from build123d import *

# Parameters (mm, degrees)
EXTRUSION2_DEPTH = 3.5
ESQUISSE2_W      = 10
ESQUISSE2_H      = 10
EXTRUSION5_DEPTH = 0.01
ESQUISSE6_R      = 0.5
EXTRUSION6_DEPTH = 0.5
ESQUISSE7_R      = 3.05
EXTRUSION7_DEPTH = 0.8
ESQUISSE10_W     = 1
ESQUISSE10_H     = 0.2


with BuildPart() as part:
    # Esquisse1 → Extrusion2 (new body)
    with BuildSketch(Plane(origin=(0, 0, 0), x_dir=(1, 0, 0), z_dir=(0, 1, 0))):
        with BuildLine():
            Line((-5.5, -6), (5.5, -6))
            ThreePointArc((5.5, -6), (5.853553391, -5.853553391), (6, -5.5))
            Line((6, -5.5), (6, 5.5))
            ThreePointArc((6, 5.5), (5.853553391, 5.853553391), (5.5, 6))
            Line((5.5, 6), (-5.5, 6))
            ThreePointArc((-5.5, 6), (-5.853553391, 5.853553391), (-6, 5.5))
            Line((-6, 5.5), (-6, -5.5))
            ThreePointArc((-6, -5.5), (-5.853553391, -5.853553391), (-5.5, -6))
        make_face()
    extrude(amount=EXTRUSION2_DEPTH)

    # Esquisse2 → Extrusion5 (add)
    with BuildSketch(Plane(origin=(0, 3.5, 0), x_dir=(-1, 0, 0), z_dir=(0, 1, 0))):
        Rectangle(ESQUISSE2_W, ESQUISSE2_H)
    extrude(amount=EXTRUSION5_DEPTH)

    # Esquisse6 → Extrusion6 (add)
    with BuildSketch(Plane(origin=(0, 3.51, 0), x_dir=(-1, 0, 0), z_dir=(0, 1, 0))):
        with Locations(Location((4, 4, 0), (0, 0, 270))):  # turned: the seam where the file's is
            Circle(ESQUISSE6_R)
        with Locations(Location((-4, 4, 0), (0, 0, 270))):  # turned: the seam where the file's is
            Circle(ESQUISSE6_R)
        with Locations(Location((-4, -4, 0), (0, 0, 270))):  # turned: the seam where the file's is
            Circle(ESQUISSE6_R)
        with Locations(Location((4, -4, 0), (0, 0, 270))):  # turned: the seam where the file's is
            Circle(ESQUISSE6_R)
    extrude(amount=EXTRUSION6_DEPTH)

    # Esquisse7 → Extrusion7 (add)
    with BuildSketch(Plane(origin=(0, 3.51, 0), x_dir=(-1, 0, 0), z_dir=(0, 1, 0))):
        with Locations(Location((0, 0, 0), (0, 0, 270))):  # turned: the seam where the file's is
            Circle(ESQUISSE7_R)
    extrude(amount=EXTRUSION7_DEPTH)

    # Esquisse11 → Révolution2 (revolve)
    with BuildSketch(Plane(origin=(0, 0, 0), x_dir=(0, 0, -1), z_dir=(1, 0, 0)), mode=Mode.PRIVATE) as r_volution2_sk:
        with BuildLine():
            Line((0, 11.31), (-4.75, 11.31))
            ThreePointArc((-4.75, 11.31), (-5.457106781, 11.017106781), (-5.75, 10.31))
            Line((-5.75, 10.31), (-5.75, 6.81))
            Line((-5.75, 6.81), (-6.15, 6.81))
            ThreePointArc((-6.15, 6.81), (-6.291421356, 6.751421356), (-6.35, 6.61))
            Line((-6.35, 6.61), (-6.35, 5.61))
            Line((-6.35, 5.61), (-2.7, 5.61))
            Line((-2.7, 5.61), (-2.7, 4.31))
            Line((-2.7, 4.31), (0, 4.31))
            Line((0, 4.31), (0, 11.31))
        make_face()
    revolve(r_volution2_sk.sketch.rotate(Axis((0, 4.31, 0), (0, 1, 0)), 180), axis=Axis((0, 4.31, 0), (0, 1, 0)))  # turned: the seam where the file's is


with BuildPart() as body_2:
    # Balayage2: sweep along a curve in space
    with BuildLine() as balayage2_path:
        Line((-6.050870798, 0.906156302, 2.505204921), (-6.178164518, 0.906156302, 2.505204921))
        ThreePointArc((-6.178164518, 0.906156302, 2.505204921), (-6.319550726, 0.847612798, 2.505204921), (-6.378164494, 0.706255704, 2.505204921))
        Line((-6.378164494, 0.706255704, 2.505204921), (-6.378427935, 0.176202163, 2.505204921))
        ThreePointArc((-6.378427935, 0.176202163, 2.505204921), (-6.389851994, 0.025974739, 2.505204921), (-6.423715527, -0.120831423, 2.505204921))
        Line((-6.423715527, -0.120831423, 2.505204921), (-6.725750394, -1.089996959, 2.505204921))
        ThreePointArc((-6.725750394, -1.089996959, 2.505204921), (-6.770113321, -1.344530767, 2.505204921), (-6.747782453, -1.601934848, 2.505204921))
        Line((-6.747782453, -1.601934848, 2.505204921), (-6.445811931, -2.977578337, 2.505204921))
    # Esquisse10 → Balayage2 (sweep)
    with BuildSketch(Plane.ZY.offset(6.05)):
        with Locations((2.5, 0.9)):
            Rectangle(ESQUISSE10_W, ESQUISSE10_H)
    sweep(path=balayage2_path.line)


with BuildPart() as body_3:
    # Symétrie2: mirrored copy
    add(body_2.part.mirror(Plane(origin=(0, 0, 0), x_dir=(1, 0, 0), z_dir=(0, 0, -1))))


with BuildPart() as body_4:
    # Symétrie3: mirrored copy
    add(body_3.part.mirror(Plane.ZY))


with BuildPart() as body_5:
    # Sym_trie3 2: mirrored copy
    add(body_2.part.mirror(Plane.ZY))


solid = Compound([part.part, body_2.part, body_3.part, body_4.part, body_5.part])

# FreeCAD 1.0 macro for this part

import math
import FreeCAD as App
import Part
import Sketcher

V = App.Vector


def add_polygon(sketch, points):
    """Adds a closed chain of lines whose ends are joined by coincident constraints."""
    first, n = sketch.GeometryCount, len(points)
    for a, b in zip(points, points[1:] + points[:1]):
        sketch.addGeometry(Part.LineSegment(App.Vector(*a, 0), App.Vector(*b, 0)), False)
    for i in range(n):
        sketch.addConstraint(Sketcher.Constraint("Coincident", first + i, 2, first + (i + 1) % n, 1))

doc = App.newDocument("Part")
body = doc.addObject("PartDesign::Body", "Body")

# Sketch on XZ plane
sketch1 = doc.addObject("Sketcher::SketchObject", "Sketch")
body.addObject(sketch1)
sketch1.AttachmentSupport = (doc.XZ_Plane, [""])
sketch1.MapMode = "FlatFace"
sketch1.addGeometry([
    Part.LineSegment(V(-5.5, 6, 0), V(5.5, 6, 0)),  # 0
    Part.ArcOfCircle(Part.Circle(V(5.5, 5.5, 0), V(0, 0, 1), 0.5), math.radians(0), math.radians(90)),  # 1
    Part.LineSegment(V(6, 5.5, 0), V(6, -5.5, 0)),  # 2
    Part.ArcOfCircle(Part.Circle(V(5.5, -5.5, 0), V(0, 0, 1), 0.5), math.radians(-90), math.radians(0)),  # 3
    Part.LineSegment(V(5.5, -6, 0), V(-5.5, -6, 0)),  # 4
    Part.ArcOfCircle(Part.Circle(V(-5.5, -5.5, 0), V(0, 0, 1), 0.5), math.radians(180), math.radians(270)),  # 5
    Part.LineSegment(V(-6, -5.5, 0), V(-6, 5.5, 0)),  # 6
    Part.ArcOfCircle(Part.Circle(V(-5.5, 5.5, 0), V(0, 0, 1), 0.5), math.radians(90), math.radians(180)),  # 7
], False)
sketch1.addConstraint([
    Sketcher.Constraint("Tangent", 0, 2, 1, 2),
    Sketcher.Constraint("Tangent", 1, 1, 2, 1),
    Sketcher.Constraint("Tangent", 2, 2, 3, 2),
    Sketcher.Constraint("Tangent", 3, 1, 4, 1),
    Sketcher.Constraint("Tangent", 4, 2, 5, 2),
    Sketcher.Constraint("Tangent", 5, 1, 6, 1),
    Sketcher.Constraint("Tangent", 6, 2, 7, 2),
    Sketcher.Constraint("Tangent", 7, 1, 0, 1),
    Sketcher.Constraint("Horizontal", 0),
    Sketcher.Constraint("Vertical", 2),
    Sketcher.Constraint("Horizontal", 4),
    Sketcher.Constraint("Vertical", 6),
    Sketcher.Constraint("Equal", 1, 3),
    Sketcher.Constraint("Equal", 3, 5),
    Sketcher.Constraint("Equal", 5, 7),
    Sketcher.Constraint("Symmetric", 1, 3, 5, 3, -1, 1),
    Sketcher.Constraint("Equal", 4, 2),
    Sketcher.Constraint("Radius", 1, 0.5),
    Sketcher.Constraint("DistanceX", 0, 1, 0, 2, 11.0),
])
pad1 = doc.addObject("PartDesign::Pad", "Pad")
body.addObject(pad1)
pad1.Profile = sketch1
pad1.Length = 3.5
pad1.Reversed = True

# Sketch on XZ plane
sketch2 = doc.addObject("Sketcher::SketchObject", "Sketch001")
body.addObject(sketch2)
sketch2.AttachmentSupport = (doc.XZ_Plane, [""])
sketch2.MapMode = "FlatFace"
sketch2.AttachmentOffset = App.Placement(V(0, 0, -3.5), App.Rotation())
add_polygon(sketch2, [(5, 5), (5, -5), (-5, -5), (-5, 5)])  # lines 0-3
sketch2.addConstraint([
    Sketcher.Constraint("Vertical", 0),
    Sketcher.Constraint("Horizontal", 1),
    Sketcher.Constraint("Vertical", 2),
    Sketcher.Constraint("Horizontal", 3),
    Sketcher.Constraint("Symmetric", 0, 2, 2, 2, -1, 1),
    Sketcher.Constraint("Equal", 3, 0),
    Sketcher.Constraint("DistanceX", 1, 2, 1, 1, 10.0),
])
pad2 = doc.addObject("PartDesign::Pad", "Pad001")
body.addObject(pad2)
pad2.Profile = sketch2
pad2.Length = 0.01
pad2.Reversed = True

# Sketch on XZ plane
sketch3 = doc.addObject("Sketcher::SketchObject", "Sketch002")
body.addObject(sketch3)
sketch3.AttachmentSupport = (doc.XZ_Plane, [""])
sketch3.MapMode = "FlatFace"
sketch3.AttachmentOffset = App.Placement(V(0, 0, -3.51), App.Rotation())
sketch3.addGeometry([
    Part.Circle(V(-4, 4, 0), V(0, 0, 1), 0.5),
    Part.Circle(V(4, 4, 0), V(0, 0, 1), 0.5),
    Part.Circle(V(4, -4, 0), V(0, 0, 1), 0.5),
    Part.Circle(V(-4, -4, 0), V(0, 0, 1), 0.5),
], False)
sketch3.addConstraint([
    Sketcher.Constraint("Equal", 0, 1),
    Sketcher.Constraint("Equal", 1, 2),
    Sketcher.Constraint("Equal", 2, 3),
    Sketcher.Constraint("Symmetric", 0, 3, 2, 3, -1, 1),
    Sketcher.Constraint("Symmetric", 1, 3, 3, 3, -1, 1),
    Sketcher.Constraint("Symmetric", 0, 3, 1, 3, -2),
    Sketcher.Constraint("Diameter", 0, 1.0),
    Sketcher.Constraint("DistanceX", 0, 3, -1, 1, 4.0),
    Sketcher.Constraint("DistanceY", -1, 1, 0, 3, 4.0),
])
pad3 = doc.addObject("PartDesign::Pad", "Pad002")
body.addObject(pad3)
pad3.Profile = sketch3
pad3.Length = 0.5
pad3.Reversed = True

# Sketch on XZ plane
sketch4 = doc.addObject("Sketcher::SketchObject", "Sketch003")
body.addObject(sketch4)
sketch4.AttachmentSupport = (doc.XZ_Plane, [""])
sketch4.MapMode = "FlatFace"
sketch4.AttachmentOffset = App.Placement(V(0, 0, -3.51), App.Rotation())
sketch4.addGeometry(Part.Circle(V(0, 0, 0), V(0, 0, 1), 3), False)
sketch4.addConstraint([
    Sketcher.Constraint("Coincident", 0, 3, -1, 1),
    Sketcher.Constraint("Diameter", 0, 6.1),
])
pad4 = doc.addObject("PartDesign::Pad", "Pad003")
body.addObject(pad4)
pad4.Profile = sketch4
pad4.Length = 0.8
pad4.Reversed = True

# Sketch on YZ plane
sketch5 = doc.addObject("Sketcher::SketchObject", "Sketch004")
body.addObject(sketch5)
sketch5.AttachmentSupport = (doc.YZ_Plane, [""])
sketch5.MapMode = "FlatFace"
sketch5.addGeometry([
    Part.LineSegment(V(11.31, 0, 0), V(11.31, 4.75, 0)),  # 0
    Part.ArcOfCircle(Part.Circle(V(10.31, 4.75, 0), V(0, 0, 1), 1), math.radians(0), math.radians(90)),  # 1
    Part.LineSegment(V(10.31, 5.75, 0), V(6.81, 5.75, 0)),  # 2
    Part.LineSegment(V(6.81, 5.75, 0), V(6.81, 6.15, 0)),  # 3
    Part.ArcOfCircle(Part.Circle(V(6.61, 6.15, 0), V(0, 0, 1), 0.2), math.radians(0), math.radians(90)),  # 4
    Part.LineSegment(V(6.61, 6.35, 0), V(5.61, 6.35, 0)),  # 5
    Part.LineSegment(V(5.61, 6.35, 0), V(5.61, 2.7, 0)),  # 6
    Part.LineSegment(V(5.61, 2.7, 0), V(4.31, 2.7, 0)),  # 7
    Part.LineSegment(V(4.31, 2.7, 0), V(4.31, 0, 0)),  # 8
    Part.LineSegment(V(4.31, 0, 0), V(11.31, 0, 0)),  # 9
], False)
sketch5.addConstraint([
    Sketcher.Constraint("Tangent", 0, 2, 1, 1),
    Sketcher.Constraint("Tangent", 1, 2, 2, 1),
    Sketcher.Constraint("Coincident", 2, 2, 3, 1),
    Sketcher.Constraint("Tangent", 3, 2, 4, 1),
    Sketcher.Constraint("Tangent", 4, 2, 5, 1),
    Sketcher.Constraint("Coincident", 5, 2, 6, 1),
    Sketcher.Constraint("Coincident", 6, 2, 7, 1),
    Sketcher.Constraint("Coincident", 7, 2, 8, 1),
    Sketcher.Constraint("Coincident", 8, 2, 9, 1),
    Sketcher.Constraint("Coincident", 9, 2, 0, 1),
    Sketcher.Constraint("Vertical", 0),
    Sketcher.Constraint("Horizontal", 2),
    Sketcher.Constraint("Vertical", 3),
    Sketcher.Constraint("Horizontal", 5),
    Sketcher.Constraint("Vertical", 6),
    Sketcher.Constraint("Horizontal", 7),
    Sketcher.Constraint("Vertical", 8),
    Sketcher.Constraint("Horizontal", 9),
    Sketcher.Constraint("PointOnObject", 8, 2, -1),
    Sketcher.Constraint("Radius", 1, 1.0),
    Sketcher.Constraint("Radius", 4, 0.2),
    Sketcher.Constraint("DistanceX", 5, 2, 5, 1, 1.0),
    Sketcher.Constraint("DistanceX", 9, 1, 9, 2, 7.0),
    Sketcher.Constraint("DistanceX", 2, 2, 2, 1, 3.5),
    Sketcher.Constraint("DistanceY", 3, 1, 3, 2, 0.4),
    Sketcher.Constraint("DistanceY", 8, 2, 8, 1, 2.7),
    Sketcher.Constraint("DistanceY", 0, 1, 0, 2, 4.75),
    Sketcher.Constraint("DistanceX", -1, 1, 1, 3, 10.31),
])
revolution = doc.addObject("PartDesign::Revolution", "Revolution")
body.addObject(revolution)
revolution.Profile = sketch5
revolution.ReferenceAxis = (sketch5, ["H_Axis"])
revolution.Angle = 360
body2 = doc.addObject("PartDesign::Body", "Body001")

# Sketch on YZ plane
sketch6 = doc.addObject("Sketcher::SketchObject", "Sketch005")
body2.addObject(sketch6)
sketch6.AttachmentSupport = (doc.getObject("YZ_Plane001"), [""])
sketch6.MapMode = "FlatFace"
sketch6.AttachmentOffset = App.Placement(V(0, 0, -6.05), App.Rotation())
add_polygon(sketch6, [(1, 2), (0.8, 2), (0.8, 3), (1, 3)])  # lines 0-3
sketch6.addConstraint([
    Sketcher.Constraint("Horizontal", 0),
    Sketcher.Constraint("Vertical", 1),
    Sketcher.Constraint("Horizontal", 2),
    Sketcher.Constraint("Vertical", 3),
    Sketcher.Constraint("DistanceY", 1, 1, 1, 2, 1.0),
    Sketcher.Constraint("DistanceX", 0, 2, 0, 1, 0.2),
    Sketcher.Constraint("DistanceY", -1, 1, 0, 2, 2.0),
    Sketcher.Constraint("DistanceX", -1, 1, 2, 2, 1.0),
])

# Sketch on XY plane
sketch7 = doc.addObject("Sketcher::SketchObject", "Sketch006")
body2.addObject(sketch7)
sketch7.AttachmentSupport = (doc.getObject("XY_Plane001"), [""])
sketch7.MapMode = "FlatFace"
sketch7.AttachmentOffset = App.Placement(V(0, 0, 2.505205), App.Rotation())
sketch7.addGeometry([
    Part.LineSegment(V(-6.05, 0.91, 0), V(-6.18, 0.91, 0)),  # 0
    Part.ArcOfCircle(Part.Circle(V(-6.18, 0.71, 0), V(0, 0, 1), 0.2), math.radians(90), math.radians(180)),  # 1
    Part.LineSegment(V(-6.38, 0.71, 0), V(-6.38, 0.18, 0)),  # 2
    Part.ArcOfCircle(Part.Circle(V(-7.38, 0.18, 0), V(0, 0, 1), 1), math.radians(-17.31), math.radians(-0.03)),  # 3
    Part.LineSegment(V(-6.42, -0.12, 0), V(-6.73, -1.09, 0)),  # 4
    Part.ArcOfCircle(Part.Circle(V(-5.77, -1.39, 0), V(0, 0, 1), 1), math.radians(163), math.radians(192)),  # 5
    Part.LineSegment(V(-6.75, -1.6, 0), V(-6.45, -2.98, 0)),  # 6
], False)
sketch7.addConstraint([
    Sketcher.Constraint("Tangent", 0, 2, 1, 1),
    Sketcher.Constraint("Tangent", 1, 2, 2, 1),
    Sketcher.Constraint("Tangent", 2, 2, 3, 2),
    Sketcher.Constraint("Tangent", 3, 1, 4, 1),
    Sketcher.Constraint("Tangent", 4, 2, 5, 1),
    Sketcher.Constraint("Tangent", 5, 2, 6, 1),
    Sketcher.Constraint("Horizontal", 0),
    Sketcher.Constraint("Equal", 3, 5),
    Sketcher.Constraint("Radius", 3, 1.0),
    Sketcher.Constraint("Radius", 1, 0.2),
    Sketcher.Constraint("DistanceY", -1, 1, 3, 3, 0.176699),
    Sketcher.Constraint("DistanceY", 1, 2, 0, 2, 0.199901),
    Sketcher.Constraint("DistanceY", 4, 2, 2, 2, 1.266199),
    Sketcher.Constraint("Distance", 4, 1.015139),
    Sketcher.Constraint("DistanceX", 0, 2, 0, 1, 0.127294),
    Sketcher.Constraint("DistanceX", 5, 3, -1, 1, 5.771038),
    Sketcher.Constraint("DistanceX", 6, 2, -1, 1, 6.445812),
    Sketcher.Constraint("DistanceY", 6, 2, -1, 1, 2.977578),
    Sketcher.Constraint("Distance", 2, 0.530054),
])
doc.recompute()

additivepipe = doc.addObject("PartDesign::AdditivePipe", "AdditivePipe")
body2.addObject(additivepipe)
additivepipe.Profile = sketch6
additivepipe.Spine = (sketch7, ["Edge1", "Edge2", "Edge3", "Edge4", "Edge5", "Edge6", "Edge7"])
body3 = doc.addObject("PartDesign::Body", "Body002")
doc.recompute()

mirroring = doc.addObject("Part::Mirroring", "Mirroring")
mirroring.Source = body2
mirroring.Base = V(0, 0, 0)
mirroring.Normal = V(0, 0, -1)
body3.BaseFeature = mirroring
doc.recompute()
body4 = doc.addObject("PartDesign::Body", "Body003")
doc.recompute()

mirroring2 = doc.addObject("Part::Mirroring", "Mirroring001")
mirroring2.Source = body3
mirroring2.Base = V(0, 0, 0)
mirroring2.Normal = V(-1, 0, 0)
body4.BaseFeature = mirroring2
doc.recompute()
body5 = doc.addObject("PartDesign::Body", "Body004")
doc.recompute()

mirroring3 = doc.addObject("Part::Mirroring", "Mirroring002")
mirroring3.Source = body2
mirroring3.Base = V(0, 0, 0)
mirroring3.Normal = V(-1, 0, 0)
body5.BaseFeature = mirroring3
doc.recompute()
mirroring.Visibility = False
mirroring2.Visibility = False
mirroring3.Visibility = False

doc.recompute()
